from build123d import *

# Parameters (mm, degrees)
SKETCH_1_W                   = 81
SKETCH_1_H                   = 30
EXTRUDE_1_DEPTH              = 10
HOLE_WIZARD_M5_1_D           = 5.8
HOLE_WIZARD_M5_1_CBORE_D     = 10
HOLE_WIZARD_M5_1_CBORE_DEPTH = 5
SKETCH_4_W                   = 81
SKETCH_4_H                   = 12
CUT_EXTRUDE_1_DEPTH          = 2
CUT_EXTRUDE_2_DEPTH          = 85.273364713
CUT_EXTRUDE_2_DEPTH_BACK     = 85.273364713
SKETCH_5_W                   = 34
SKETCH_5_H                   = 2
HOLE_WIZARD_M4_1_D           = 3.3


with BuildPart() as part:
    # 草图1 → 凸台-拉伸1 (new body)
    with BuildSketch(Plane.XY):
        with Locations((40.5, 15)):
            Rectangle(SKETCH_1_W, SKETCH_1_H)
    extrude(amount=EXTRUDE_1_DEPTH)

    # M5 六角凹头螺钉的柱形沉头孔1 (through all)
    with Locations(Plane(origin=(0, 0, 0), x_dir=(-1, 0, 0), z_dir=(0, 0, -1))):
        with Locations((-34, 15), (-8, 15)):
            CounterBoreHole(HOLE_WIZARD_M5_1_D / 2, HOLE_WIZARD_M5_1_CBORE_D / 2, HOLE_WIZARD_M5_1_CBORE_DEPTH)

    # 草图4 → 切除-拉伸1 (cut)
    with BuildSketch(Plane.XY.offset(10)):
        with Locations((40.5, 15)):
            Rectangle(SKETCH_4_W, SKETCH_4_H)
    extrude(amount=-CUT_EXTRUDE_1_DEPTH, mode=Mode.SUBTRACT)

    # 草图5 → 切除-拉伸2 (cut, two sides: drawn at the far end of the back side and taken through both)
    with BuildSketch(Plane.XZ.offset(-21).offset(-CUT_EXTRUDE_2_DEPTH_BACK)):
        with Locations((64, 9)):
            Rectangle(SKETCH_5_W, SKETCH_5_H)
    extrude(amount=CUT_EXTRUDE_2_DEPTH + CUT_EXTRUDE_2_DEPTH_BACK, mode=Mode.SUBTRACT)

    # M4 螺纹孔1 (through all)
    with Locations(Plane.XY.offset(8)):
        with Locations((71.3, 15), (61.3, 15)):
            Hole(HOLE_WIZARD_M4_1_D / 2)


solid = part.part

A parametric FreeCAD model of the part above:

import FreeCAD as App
import Part
import Sketcher
from FreeCAD import Vector


def add_polygon(sketch, points):
    """Adds a closed chain of lines whose ends are joined by coincident constraints."""
    first, n = sketch.GeometryCount, len(points)
    for a, b in zip(points, points[1:] + points[:1]):
        sketch.addGeometry(Part.LineSegment(App.Vector(*a, 0), App.Vector(*b, 0)), False)
    for i in range(n):
        sketch.addConstraint(Sketcher.Constraint("Coincident", first + i, 2, first + (i + 1) % n, 1))

doc = App.newDocument("Part")
body = doc.addObject("PartDesign::Body", "Body")

sketch1 = body.newObject("Sketcher::SketchObject", "Sketch")
sketch1.AttachmentSupport = (doc.getObject("XY_Plane"), [""])
sketch1.MapMode = "FlatFace"
add_polygon(sketch1, [(0, 30), (0, 0), (81, 0), (81, 30)])
sketch1.addConstraint([
    Sketcher.Constraint("Vertical", 0),
    Sketcher.Constraint("Horizontal", 1),
    Sketcher.Constraint("Vertical", 2),
    Sketcher.Constraint("Horizontal", 3),
    Sketcher.Constraint("Coincident", 0, 2, -1, 1),
    Sketcher.Constraint("DistanceX", 1, 1, 1, 2, 81.0),
    Sketcher.Constraint("DistanceY", 0, 2, 0, 1, 30.0),
])
pad1 = body.newObject("PartDesign::Pad", "Pad")
pad1.Profile = sketch1
pad1.Length = 10

sketch2 = body.newObject("Sketcher::SketchObject", "Sketch001")
sketch2.AttachmentSupport = (doc.getObject("XY_Plane"), [""])
sketch2.MapMode = "FlatFace"
sketch2.addGeometry([
    Part.Circle(Vector(34, 15, 0), Vector(0, 0, 1), 2.9),
    Part.Circle(Vector(8, 15, 0), Vector(0, 0, 1), 2.9),
], False)
sketch2.addConstraint([
    Sketcher.Constraint("Equal", 0, 1),
    Sketcher.Constraint("Horizontal", 0, 3, 1, 3),
    Sketcher.Constraint("Diameter", 0, 5.8),
    Sketcher.Constraint("DistanceX", -1, 1, 0, 3, 34.0),
    Sketcher.Constraint("DistanceY", -1, 1, 0, 3, 15.0),
    Sketcher.Constraint("DistanceX", -1, 1, 1, 3, 8.0),
])
doc.recompute()
hole = body.newObject("PartDesign::Hole", "Hole")
hole.Profile = sketch2
hole.ThreadType = "None"
hole.Diameter = 5.8
hole.DepthType = "ThroughAll"
hole.HoleCutType = "Counterbore"
hole.HoleCutDiameter = 10
hole.HoleCutDepth = 5
hole.Reversed = True

sketch3 = body.newObject("Sketcher::SketchObject", "Sketch002")
sketch3.AttachmentSupport = (doc.getObject("XY_Plane"), [""])
sketch3.MapMode = "FlatFace"
sketch3.AttachmentOffset = App.Placement(Vector(0, 0, 10), App.Rotation())
add_polygon(sketch3, [(0, 21), (0, 9), (81, 9), (81, 21)])
sketch3.addConstraint([
    Sketcher.Constraint("Vertical", 0),
    Sketcher.Constraint("Horizontal", 1),
    Sketcher.Constraint("Vertical", 2),
    Sketcher.Constraint("Horizontal", 3),
    Sketcher.Constraint("PointOnObject", 0, 2, -2),
    Sketcher.Constraint("DistanceX", 1, 1, 1, 2, 81.0),
    Sketcher.Constraint("DistanceY", 0, 2, 0, 1, 12.0),
    Sketcher.Constraint("DistanceY", -1, 1, 0, 2, 9.0),
])
pocket1 = body.newObject("PartDesign::Pocket", "Pocket")
pocket1.Profile = sketch3
pocket1.Length = 2

sketch4 = body.newObject("Sketcher::SketchObject", "Sketch003")
sketch4.AttachmentSupport = (doc.getObject("XZ_Plane"), [""])
sketch4.MapMode = "FlatFace"
sketch4.AttachmentOffset = App.Placement(Vector(0, 0, -21), App.Rotation())
add_polygon(sketch4, [(47, 10), (47, 8), (81, 8), (81, 10)])
sketch4.addConstraint([
    Sketcher.Constraint("Vertical", 0),
    Sketcher.Constraint("Horizontal", 1),
    Sketcher.Constraint("Vertical", 2),
    Sketcher.Constraint("Horizontal", 3),
    Sketcher.Constraint("DistanceX", 1, 1, 1, 2, 34.0),
    Sketcher.Constraint("DistanceY", 0, 2, 0, 1, 2.0),
    Sketcher.Constraint("DistanceX", -1, 1, 0, 2, 47.0),
    Sketcher.Constraint("DistanceY", -1, 1, 0, 2, 8.0),
])
pocket2 = body.newObject("PartDesign::Pocket", "Pocket001")
pocket2.Profile = sketch4
pocket2.Type = "ThroughAll"
pocket2.Midplane = True

sketch5 = body.newObject("Sketcher::SketchObject", "Sketch004")
sketch5.AttachmentSupport = (doc.getObject("XY_Plane"), [""])
sketch5.MapMode = "FlatFace"
sketch5.AttachmentOffset = App.Placement(Vector(0, 0, 8), App.Rotation())
sketch5.addGeometry([
    Part.Circle(Vector(71.3, 15, 0), Vector(0, 0, 1), 1.6),
    Part.Circle(Vector(61.3, 15, 0), Vector(0, 0, 1), 1.6),
], False)
sketch5.addConstraint([
    Sketcher.Constraint("Equal", 0, 1),
    Sketcher.Constraint("Horizontal", 0, 3, 1, 3),
    Sketcher.Constraint("Diameter", 0, 3.3),
    Sketcher.Constraint("DistanceY", -1, 1, 0, 3, 15.0),
    Sketcher.Constraint("DistanceX", 1, 3, 0, 3, 10.0),
    Sketcher.Constraint("DistanceX", -1, 1, 0, 3, 71.3),
])
doc.recompute()
hole2 = body.newObject("PartDesign::Hole", "Hole001")
hole2.Profile = sketch5
hole2.ThreadType = "None"
hole2.Diameter = 3.3
hole2.DepthType = "ThroughAll"

doc.recompute()
